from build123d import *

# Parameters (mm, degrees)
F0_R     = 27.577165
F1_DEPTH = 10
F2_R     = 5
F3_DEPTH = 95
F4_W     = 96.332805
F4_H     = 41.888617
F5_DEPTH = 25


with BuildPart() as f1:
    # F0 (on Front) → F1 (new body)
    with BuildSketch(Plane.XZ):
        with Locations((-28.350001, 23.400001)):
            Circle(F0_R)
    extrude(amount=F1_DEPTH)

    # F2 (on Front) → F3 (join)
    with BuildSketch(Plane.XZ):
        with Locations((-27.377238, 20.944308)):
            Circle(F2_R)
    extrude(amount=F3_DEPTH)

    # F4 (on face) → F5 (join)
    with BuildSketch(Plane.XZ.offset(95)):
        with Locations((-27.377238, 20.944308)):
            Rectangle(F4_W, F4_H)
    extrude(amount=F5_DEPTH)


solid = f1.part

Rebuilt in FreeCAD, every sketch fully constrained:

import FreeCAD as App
import Part
import Sketcher
from FreeCAD import Vector


def add_polygon(sketch, points):
    """Adds a closed chain of lines whose ends are joined by coincident constraints."""
    first, n = sketch.GeometryCount, len(points)
    for a, b in zip(points, points[1:] + points[:1]):
        sketch.addGeometry(Part.LineSegment(App.Vector(*a, 0), App.Vector(*b, 0)), False)
    for i in range(n):
        sketch.addConstraint(Sketcher.Constraint("Coincident", first + i, 2, first + (i + 1) % n, 1))

doc = App.newDocument("Part")
body = doc.addObject("PartDesign::Body", "Body")

# Sketch on XZ plane
sketch1 = body.newObject("Sketcher::SketchObject", "Sketch")
sketch1.AttachmentSupport = (doc.getObject("XZ_Plane"), [""])
sketch1.MapMode = "FlatFace"
sketch1.addGeometry(Part.Circle(Vector(-28.350001, 23.400001, 0), Vector(0, 0, 1), 27.577165), False)
sketch1.addConstraint(Sketcher.Constraint("DistanceY", -1, 1, 0, 3, 23.400001))
sketch1.addConstraint(Sketcher.Constraint("Diameter", 0, 55.15433))
sketch1.addConstraint(Sketcher.Constraint("DistanceX", 0, 3, -1, 1, 28.350001))
pad1 = body.newObject("PartDesign::Pad", "Pad")
pad1.Profile = sketch1
pad1.Length = 10

# Sketch on XZ plane
sketch2 = body.newObject("Sketcher::SketchObject", "Sketch001")
sketch2.AttachmentSupport = (doc.getObject("XZ_Plane"), [""])
sketch2.MapMode = "FlatFace"
sketch2.addGeometry(Part.Circle(Vector(-27.377238, 20.944308, 0), Vector(0, 0, 1), 5), False)
sketch2.addConstraint(Sketcher.Constraint("Diameter", 0, 10.0))
sketch2.addConstraint(Sketcher.Constraint("DistanceX", 0, 3, -1, 1, 27.377238))
sketch2.addConstraint(Sketcher.Constraint("DistanceY", -1, 1, 0, 3, 20.944308))
pad2 = body.newObject("PartDesign::Pad", "Pad001")
pad2.Profile = sketch2
pad2.Length = 95

# Sketch on XZ plane
sketch3 = body.newObject("Sketcher::SketchObject", "Sketch002")
sketch3.AttachmentSupport = (doc.getObject("XZ_Plane"), [""])
sketch3.MapMode = "FlatFace"
sketch3.AttachmentOffset = App.Placement(Vector(0, 0, 95), App.Rotation())
add_polygon(sketch3, [(-75.54364, 41.888616), (-75.54364, 0), (20.789164, 0), (20.789164, 41.888616)])  # lines 0-3
sketch3.addConstraint(Sketcher.Constraint("Vertical", 0))
sketch3.addConstraint(Sketcher.Constraint("Horizontal", 1))
sketch3.addConstraint(Sketcher.Constraint("Vertical", 2))
sketch3.addConstraint(Sketcher.Constraint("Horizontal", 3))
sketch3.addConstraint(Sketcher.Constraint("PointOnObject", 0, 2, -1))
sketch3.addConstraint(Sketcher.Constraint("DistanceX", 1, 1, 1, 2, 96.332805))
sketch3.addConstraint(Sketcher.Constraint("DistanceY", 0, 2, 0, 1, 41.888617))
sketch3.addConstraint(Sketcher.Constraint("DistanceX", 0, 2, -1, 1, 75.54364))
pad3 = body.newObject("PartDesign::Pad", "Pad002")
pad3.Profile = sketch3
pad3.Length = 25

doc.recompute()
